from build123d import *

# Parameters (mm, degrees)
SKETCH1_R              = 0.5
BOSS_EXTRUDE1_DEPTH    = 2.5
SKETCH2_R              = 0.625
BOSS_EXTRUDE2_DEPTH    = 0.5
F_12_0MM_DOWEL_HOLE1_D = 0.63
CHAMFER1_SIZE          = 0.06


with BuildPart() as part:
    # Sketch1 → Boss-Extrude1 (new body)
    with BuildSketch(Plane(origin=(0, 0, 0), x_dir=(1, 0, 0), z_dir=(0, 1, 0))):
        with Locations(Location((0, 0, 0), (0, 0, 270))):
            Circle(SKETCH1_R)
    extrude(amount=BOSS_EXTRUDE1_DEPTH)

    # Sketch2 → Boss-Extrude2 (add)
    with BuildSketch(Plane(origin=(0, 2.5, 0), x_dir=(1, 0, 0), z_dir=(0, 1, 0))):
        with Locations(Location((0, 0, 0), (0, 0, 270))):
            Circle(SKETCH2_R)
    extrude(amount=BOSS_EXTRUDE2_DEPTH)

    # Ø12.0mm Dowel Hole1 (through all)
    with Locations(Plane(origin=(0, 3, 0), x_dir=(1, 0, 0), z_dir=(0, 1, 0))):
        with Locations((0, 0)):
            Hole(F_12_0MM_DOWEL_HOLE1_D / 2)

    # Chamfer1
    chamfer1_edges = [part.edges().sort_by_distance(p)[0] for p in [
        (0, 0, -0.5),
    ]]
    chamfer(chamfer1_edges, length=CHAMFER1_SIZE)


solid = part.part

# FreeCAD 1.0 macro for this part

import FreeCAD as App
import Part
import Sketcher

V = App.Vector
Q = App.Units.Quantity


def edges_at(feature, points):
    """Names of the edges that pass closest to the given points."""
    edges = feature.Shape.Edges
    near = lambda p: min(range(len(edges)), key=lambda i: edges[i].distToShape(Part.Vertex(*p))[0])
    return sorted({f"Edge{near(p) + 1}" for p in points})

doc = App.newDocument("Part")
body = doc.addObject("PartDesign::Body", "Body")

# Sketch on XZ plane
sketch1 = body.newObject("Sketcher::SketchObject", "Sketch")
sketch1.AttachmentSupport = (doc.getObject("XZ_Plane"), [""])
sketch1.MapMode = "FlatFace"
sketch1.addGeometry(Part.Circle(V(0, 0, 0), V(0, 0, 1), 0.5), False)
sketch1.addConstraint(Sketcher.Constraint("Coincident", 0, 3, -1, 1))
sketch1.addConstraint(Sketcher.Constraint("Diameter", 0, Q("1 mm")))
pad1 = body.newObject("PartDesign::Pad", "Pad")
pad1.Profile = sketch1
pad1.Length = 2.5
pad1.Reversed = True

# Sketch on XZ plane
sketch2 = body.newObject("Sketcher::SketchObject", "Sketch001")
sketch2.AttachmentSupport = (doc.getObject("XZ_Plane"), [""])
sketch2.MapMode = "FlatFace"
sketch2.AttachmentOffset = App.Placement(V(0, 0, -2.5), App.Rotation())
sketch2.addGeometry(Part.Circle(V(0, 0, 0), V(0, 0, 1), 0.6), False)
sketch2.addConstraint(Sketcher.Constraint("Coincident", 0, 3, -1, 1))
sketch2.addConstraint(Sketcher.Constraint("Diameter", 0, Q("1.25 mm")))
pad2 = body.newObject("PartDesign::Pad", "Pad001")
pad2.Profile = sketch2
pad2.Length = 0.5
pad2.Reversed = True

# Sketch on XZ plane
sketch3 = body.newObject("Sketcher::SketchObject", "Sketch002")
sketch3.AttachmentSupport = (doc.getObject("XZ_Plane"), [""])
sketch3.MapMode = "FlatFace"
sketch3.AttachmentOffset = App.Placement(V(0, 0, -3), App.Rotation())
sketch3.addGeometry(Part.Circle(V(0, 0, 0), V(0, 0, 1), 0.32), False)
sketch3.addConstraint(Sketcher.Constraint("Coincident", 0, 3, -1, 1))
sketch3.addConstraint(Sketcher.Constraint("Diameter", 0, Q("0.63 mm")))
doc.recompute()
hole = body.newObject("PartDesign::Hole", "Hole")
hole.Profile = sketch3
hole.ThreadType = "None"
hole.Diameter = 0.63
hole.DepthType = "ThroughAll"
hole.Reversed = True
doc.recompute()

chamfer = body.newObject("PartDesign::Chamfer", "Chamfer")
chamfer.Base = (hole, edges_at(hole, [(0, 0, -0.5)]))
chamfer.Size = 0.06

doc.recompute()
